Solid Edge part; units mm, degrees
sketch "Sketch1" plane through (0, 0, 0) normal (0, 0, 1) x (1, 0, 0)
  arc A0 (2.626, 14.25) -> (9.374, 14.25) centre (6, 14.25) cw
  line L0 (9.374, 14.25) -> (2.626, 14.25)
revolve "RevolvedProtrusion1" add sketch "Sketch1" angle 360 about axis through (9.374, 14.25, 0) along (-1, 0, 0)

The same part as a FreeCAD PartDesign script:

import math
import FreeCAD as App
import Part
import Sketcher

doc = App.newDocument("Part")
params = doc.addObject("Spreadsheet::Sheet", "Params")
for row, (alias, value) in enumerate([
    ("revolution_angle", "360 deg"),
], start=1):
    params.set(f"A{row}", alias)
    params.set(f"B{row}", "=" + value)
    params.setAlias(f"B{row}", alias)

body = doc.addObject("PartDesign::Body", "Body")

sketch1 = body.newObject("Sketcher::SketchObject", "Sketch")
sketch1.AttachmentSupport = (doc.getObject("XY_Plane"), [""])
sketch1.MapMode = "FlatFace"
sketch1.addGeometry([
    Part.ArcOfCircle(Part.Circle(App.Vector(6, 14.25, 0), App.Vector(0, 0, 1), 3.374), math.radians(0), math.radians(180)),
    Part.LineSegment(App.Vector(2.626, 14.25, 0), App.Vector(9.374, 14.25, 0)),
], False)
sketch1.addGeometry(Part.LineSegment(App.Vector(9.374, 14.25, 0), App.Vector(2.626, 14.25, 0)), True)
sketch1.addConstraint([
    Sketcher.Constraint("Coincident", 0, 1, 1, 2),
    Sketcher.Constraint("Coincident", 1, 1, 0, 2),
    Sketcher.Constraint("Horizontal", 1),
    Sketcher.Constraint("Horizontal", 2),
    Sketcher.Constraint("Coincident", 2, 1, 0, 1),
    Sketcher.Constraint("Equal", 1, 2),
    Sketcher.Constraint("DistanceX", -1, 1, 0, 3, 6.0),
    Sketcher.Constraint("Radius", 0, 3.374),
    Sketcher.Constraint("DistanceY", -1, 1, 0, 3, 14.25),
    Sketcher.Constraint("DistanceY", -1, 1, 0, 1, 14.25),
])
revolution = body.newObject("PartDesign::Revolution", "Revolution")
revolution.Profile = sketch1
revolution.ReferenceAxis = (sketch1, ["Axis0"])
revolution.setExpression("Angle", "Params.revolution_angle")

doc.recompute()
